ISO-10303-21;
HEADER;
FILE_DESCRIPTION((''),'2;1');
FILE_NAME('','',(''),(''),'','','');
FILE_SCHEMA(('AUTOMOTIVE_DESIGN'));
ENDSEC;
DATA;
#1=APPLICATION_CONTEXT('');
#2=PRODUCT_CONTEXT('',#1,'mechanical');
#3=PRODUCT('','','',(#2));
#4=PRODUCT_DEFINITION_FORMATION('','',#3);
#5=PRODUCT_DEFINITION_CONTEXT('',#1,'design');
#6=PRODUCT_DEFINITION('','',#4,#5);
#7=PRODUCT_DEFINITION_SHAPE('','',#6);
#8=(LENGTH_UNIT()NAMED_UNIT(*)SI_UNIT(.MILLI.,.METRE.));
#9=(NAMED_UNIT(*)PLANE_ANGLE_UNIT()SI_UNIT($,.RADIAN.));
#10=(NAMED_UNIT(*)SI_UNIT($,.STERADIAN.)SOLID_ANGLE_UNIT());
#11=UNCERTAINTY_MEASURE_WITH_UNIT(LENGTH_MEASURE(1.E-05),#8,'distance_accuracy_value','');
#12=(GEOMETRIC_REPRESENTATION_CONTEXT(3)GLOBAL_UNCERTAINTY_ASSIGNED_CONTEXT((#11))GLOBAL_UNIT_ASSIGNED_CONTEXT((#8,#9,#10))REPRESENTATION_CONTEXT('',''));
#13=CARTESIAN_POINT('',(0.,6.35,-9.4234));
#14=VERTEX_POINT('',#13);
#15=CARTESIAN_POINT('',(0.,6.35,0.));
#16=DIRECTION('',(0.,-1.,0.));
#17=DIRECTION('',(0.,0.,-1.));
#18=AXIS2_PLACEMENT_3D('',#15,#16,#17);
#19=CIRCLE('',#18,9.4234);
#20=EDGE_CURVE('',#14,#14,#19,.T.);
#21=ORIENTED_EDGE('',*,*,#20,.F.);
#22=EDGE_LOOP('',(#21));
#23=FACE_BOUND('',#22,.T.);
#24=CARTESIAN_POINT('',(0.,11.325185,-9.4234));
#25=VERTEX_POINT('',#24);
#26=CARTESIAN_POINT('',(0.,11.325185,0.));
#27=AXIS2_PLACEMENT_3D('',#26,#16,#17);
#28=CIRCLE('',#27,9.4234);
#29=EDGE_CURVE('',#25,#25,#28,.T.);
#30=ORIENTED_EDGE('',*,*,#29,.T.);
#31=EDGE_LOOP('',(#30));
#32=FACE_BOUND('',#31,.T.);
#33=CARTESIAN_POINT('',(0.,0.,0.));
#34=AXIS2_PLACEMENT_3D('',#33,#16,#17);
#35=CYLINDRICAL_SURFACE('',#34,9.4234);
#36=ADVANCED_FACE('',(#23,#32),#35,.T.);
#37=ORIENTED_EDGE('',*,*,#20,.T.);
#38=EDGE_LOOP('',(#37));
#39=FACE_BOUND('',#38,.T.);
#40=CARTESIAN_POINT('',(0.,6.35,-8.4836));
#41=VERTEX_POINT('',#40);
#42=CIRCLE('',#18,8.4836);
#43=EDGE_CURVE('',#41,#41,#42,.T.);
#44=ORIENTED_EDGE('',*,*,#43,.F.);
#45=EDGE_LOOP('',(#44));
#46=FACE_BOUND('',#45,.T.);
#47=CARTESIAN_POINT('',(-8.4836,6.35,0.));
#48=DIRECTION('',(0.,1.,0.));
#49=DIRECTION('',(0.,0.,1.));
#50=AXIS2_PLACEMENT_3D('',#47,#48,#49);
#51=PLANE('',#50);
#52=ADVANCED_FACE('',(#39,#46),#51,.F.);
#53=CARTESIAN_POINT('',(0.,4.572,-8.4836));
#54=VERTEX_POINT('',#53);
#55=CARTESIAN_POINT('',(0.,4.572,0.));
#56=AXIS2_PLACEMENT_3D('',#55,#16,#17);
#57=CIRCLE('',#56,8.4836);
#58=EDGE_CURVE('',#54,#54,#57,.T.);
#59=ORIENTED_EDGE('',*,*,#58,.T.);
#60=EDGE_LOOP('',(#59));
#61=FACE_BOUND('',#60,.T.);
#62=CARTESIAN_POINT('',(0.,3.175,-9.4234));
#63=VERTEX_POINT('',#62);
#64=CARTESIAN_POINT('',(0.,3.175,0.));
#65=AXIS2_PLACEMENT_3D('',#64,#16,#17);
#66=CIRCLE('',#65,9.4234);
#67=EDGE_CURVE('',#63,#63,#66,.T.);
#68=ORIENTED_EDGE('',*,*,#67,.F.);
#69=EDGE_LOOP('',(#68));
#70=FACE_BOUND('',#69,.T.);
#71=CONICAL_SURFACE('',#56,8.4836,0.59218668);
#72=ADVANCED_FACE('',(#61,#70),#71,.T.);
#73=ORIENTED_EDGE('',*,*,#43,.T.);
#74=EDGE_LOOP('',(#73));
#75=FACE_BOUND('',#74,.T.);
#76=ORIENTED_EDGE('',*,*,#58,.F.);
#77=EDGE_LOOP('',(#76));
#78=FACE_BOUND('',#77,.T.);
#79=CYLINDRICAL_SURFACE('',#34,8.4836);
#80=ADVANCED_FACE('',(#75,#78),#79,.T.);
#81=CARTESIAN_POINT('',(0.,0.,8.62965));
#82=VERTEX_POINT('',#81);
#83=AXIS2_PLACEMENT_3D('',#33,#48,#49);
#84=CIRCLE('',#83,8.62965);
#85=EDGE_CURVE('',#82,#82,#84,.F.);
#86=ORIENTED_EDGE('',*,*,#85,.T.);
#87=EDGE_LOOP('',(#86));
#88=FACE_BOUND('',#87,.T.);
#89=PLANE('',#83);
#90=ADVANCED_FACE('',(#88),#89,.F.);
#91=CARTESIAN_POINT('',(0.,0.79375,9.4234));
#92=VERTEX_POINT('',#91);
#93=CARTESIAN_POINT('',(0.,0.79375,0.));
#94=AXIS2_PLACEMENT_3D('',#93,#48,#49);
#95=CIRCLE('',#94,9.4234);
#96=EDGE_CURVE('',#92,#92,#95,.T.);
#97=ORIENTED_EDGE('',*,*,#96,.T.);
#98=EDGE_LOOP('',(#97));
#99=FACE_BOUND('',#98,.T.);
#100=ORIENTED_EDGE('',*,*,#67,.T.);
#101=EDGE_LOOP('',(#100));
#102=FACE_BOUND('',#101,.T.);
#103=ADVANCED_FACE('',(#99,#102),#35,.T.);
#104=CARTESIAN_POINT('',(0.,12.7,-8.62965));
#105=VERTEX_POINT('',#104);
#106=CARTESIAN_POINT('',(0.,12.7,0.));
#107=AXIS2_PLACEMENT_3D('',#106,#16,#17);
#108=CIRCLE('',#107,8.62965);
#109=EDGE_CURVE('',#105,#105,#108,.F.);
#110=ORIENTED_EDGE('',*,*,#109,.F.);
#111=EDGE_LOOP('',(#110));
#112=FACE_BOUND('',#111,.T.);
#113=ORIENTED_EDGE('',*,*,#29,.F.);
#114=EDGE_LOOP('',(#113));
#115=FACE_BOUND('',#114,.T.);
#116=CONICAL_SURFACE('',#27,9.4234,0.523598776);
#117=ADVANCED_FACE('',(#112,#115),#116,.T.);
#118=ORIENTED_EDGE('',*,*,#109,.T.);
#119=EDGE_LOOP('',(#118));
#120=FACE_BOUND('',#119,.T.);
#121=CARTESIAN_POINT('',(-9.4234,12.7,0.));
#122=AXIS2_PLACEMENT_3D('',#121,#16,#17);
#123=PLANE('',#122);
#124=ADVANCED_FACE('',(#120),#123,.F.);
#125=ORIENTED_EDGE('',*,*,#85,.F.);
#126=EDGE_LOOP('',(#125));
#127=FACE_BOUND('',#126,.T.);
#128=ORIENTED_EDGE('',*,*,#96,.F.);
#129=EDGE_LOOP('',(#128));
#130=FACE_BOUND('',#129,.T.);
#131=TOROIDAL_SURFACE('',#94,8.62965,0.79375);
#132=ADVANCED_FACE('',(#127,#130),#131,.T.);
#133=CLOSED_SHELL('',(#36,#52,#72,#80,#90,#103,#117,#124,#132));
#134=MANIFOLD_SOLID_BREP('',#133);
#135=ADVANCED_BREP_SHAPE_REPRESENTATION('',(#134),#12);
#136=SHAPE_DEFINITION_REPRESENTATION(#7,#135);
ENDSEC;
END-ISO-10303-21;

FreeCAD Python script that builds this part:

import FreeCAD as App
import Part
import Sketcher

V = App.Vector
Q = App.Units.Quantity


def edges_at(feature, points):
    """Names of the edges that pass closest to the given points."""
    edges = feature.Shape.Edges
    near = lambda p: min(range(len(edges)), key=lambda i: edges[i].distToShape(Part.Vertex(*p))[0])
    return sorted({f"Edge{near(p) + 1}" for p in points})

doc = App.newDocument("Part")
body = doc.addObject("PartDesign::Body", "Body")

# Sketch on XY plane
sketch1 = body.newObject("Sketcher::SketchObject", "Sketch")
sketch1.AttachmentSupport = (doc.getObject("XY_Plane"), [""])
sketch1.MapMode = "FlatFace"
sketch1.addGeometry([
    Part.LineSegment(V(-9.4234, 0, 0), V(0, 0, 0)),  # 0
    Part.LineSegment(V(0, 0, 0), V(0, 12.7, 0)),  # 1
    Part.LineSegment(V(0, 12.7, 0), V(-9.4234, 12.7, 0)),  # 2
    Part.LineSegment(V(-9.4234, 12.7, 0), V(-9.4234, 6.35, 0)),  # 3
    Part.LineSegment(V(-9.4234, 6.35, 0), V(-8.4836, 6.35, 0)),  # 4
    Part.LineSegment(V(-8.4836, 6.35, 0), V(-8.4836, 4.572, 0)),  # 5
    Part.LineSegment(V(-8.4836, 4.572, 0), V(-9.4234, 3.175, 0)),  # 6
    Part.LineSegment(V(-9.4234, 3.175, 0), V(-9.4234, 0, 0)),  # 7
], False)
sketch1.addConstraint([
    Sketcher.Constraint("Coincident", 0, 2, 1, 1),
    Sketcher.Constraint("Coincident", 1, 2, 2, 1),
    Sketcher.Constraint("Coincident", 2, 2, 3, 1),
    Sketcher.Constraint("Coincident", 3, 2, 4, 1),
    Sketcher.Constraint("Coincident", 4, 2, 5, 1),
    Sketcher.Constraint("Coincident", 5, 2, 6, 1),
    Sketcher.Constraint("Coincident", 6, 2, 7, 1),
    Sketcher.Constraint("Coincident", 7, 2, 0, 1),
    Sketcher.Constraint("Horizontal", 0),
    Sketcher.Constraint("Vertical", 1),
    Sketcher.Constraint("Horizontal", 2),
    Sketcher.Constraint("Vertical", 3),
    Sketcher.Constraint("Horizontal", 4),
    Sketcher.Constraint("Vertical", 5),
    Sketcher.Constraint("Vertical", 7),
    Sketcher.Constraint("Coincident", 0, 2, -1, 1),
    Sketcher.Constraint("Vertical", 3, 2, 6, 2),
    Sketcher.Constraint("DistanceY", 1, 1, 1, 2, Q("0.5 in")),
    Sketcher.Constraint("DistanceY", 3, 2, 3, 1, Q("0.25 in")),
    Sketcher.Constraint("DistanceY", 5, 2, 5, 1, Q("0.07 in")),
    Sketcher.Constraint("DistanceX", 0, 1, 0, 2, Q("0.371 in")),
    Sketcher.Constraint("DistanceX", 4, 1, 4, 2, Q("0.037 in")),
    Sketcher.Constraint("DistanceY", 7, 2, 7, 1, Q("0.125 in")),
])
revolution = body.newObject("PartDesign::Revolution", "Revolution")
revolution.Profile = sketch1
revolution.ReferenceAxis = (sketch1, ["V_Axis"])
revolution.Angle = 360
doc.recompute()

fillet = body.newObject("PartDesign::Fillet", "Fillet")
fillet.Base = (revolution, edges_at(revolution, [(9.423, 0, 0)]))
fillet.Radius = Q("0.03125 in")
doc.recompute()

chamfer = body.newObject("PartDesign::Chamfer", "Chamfer")
chamfer.Base = (fillet, edges_at(fillet, [(9.423, 12.7, 0)]))
chamfer.ChamferType = "Two distances"
chamfer.Size = Q("0.03125 in")
chamfer.Size2 = 1.374815
chamfer.FlipDirection = True

doc.recompute()
